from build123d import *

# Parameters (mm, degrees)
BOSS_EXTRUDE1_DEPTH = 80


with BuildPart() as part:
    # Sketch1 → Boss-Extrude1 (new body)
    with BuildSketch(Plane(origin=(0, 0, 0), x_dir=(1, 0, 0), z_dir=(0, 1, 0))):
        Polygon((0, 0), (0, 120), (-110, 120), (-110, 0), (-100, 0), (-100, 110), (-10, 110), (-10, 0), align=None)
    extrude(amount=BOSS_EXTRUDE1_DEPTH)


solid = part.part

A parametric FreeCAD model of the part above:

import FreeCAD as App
import Part
import Sketcher

doc = App.newDocument("Part")
body = doc.addObject("PartDesign::Body", "Body")

# Sketch on XZ plane
sketch1 = body.newObject("Sketcher::SketchObject", "Sketch")
sketch1.AttachmentSupport = (doc.getObject("XZ_Plane"), [""])
sketch1.MapMode = "FlatFace"
sketch1.addGeometry([
    Part.LineSegment(App.Vector(0, 0, 0), App.Vector(0, -120, 0)),  # 0
    Part.LineSegment(App.Vector(0, -120, 0), App.Vector(-110, -120, 0)),  # 1
    Part.LineSegment(App.Vector(-110, -120, 0), App.Vector(-110, 0, 0)),  # 2
    Part.LineSegment(App.Vector(-110, 0, 0), App.Vector(-100, 0, 0)),  # 3
    Part.LineSegment(App.Vector(-100, 0, 0), App.Vector(-100, -110, 0)),  # 4
    Part.LineSegment(App.Vector(-100, -110, 0), App.Vector(-10, -110, 0)),  # 5
    Part.LineSegment(App.Vector(-10, -110, 0), App.Vector(-10, 0, 0)),  # 6
    Part.LineSegment(App.Vector(-10, 0, 0), App.Vector(0, 0, 0)),  # 7
], False)
sketch1.addConstraint([
    Sketcher.Constraint("Coincident", 0, 2, 1, 1),
    Sketcher.Constraint("Coincident", 1, 2, 2, 1),
    Sketcher.Constraint("Coincident", 2, 2, 3, 1),
    Sketcher.Constraint("Coincident", 3, 2, 4, 1),
    Sketcher.Constraint("Coincident", 4, 2, 5, 1),
    Sketcher.Constraint("Coincident", 5, 2, 6, 1),
    Sketcher.Constraint("Coincident", 6, 2, 7, 1),
    Sketcher.Constraint("Coincident", 7, 2, 0, 1),
    Sketcher.Constraint("Vertical", 0),
    Sketcher.Constraint("Horizontal", 1),
    Sketcher.Constraint("Vertical", 2),
    Sketcher.Constraint("Horizontal", 3),
    Sketcher.Constraint("Vertical", 4),
    Sketcher.Constraint("Horizontal", 5),
    Sketcher.Constraint("Vertical", 6),
    Sketcher.Constraint("Horizontal", 7),
    Sketcher.Constraint("Coincident", 7, 2, -1, 1),
    Sketcher.Constraint("PointOnObject", 2, 2, -1),
    Sketcher.Constraint("Equal", 3, 7),
    Sketcher.Constraint("Equal", 1, 4),
    Sketcher.Constraint("DistanceX", 1, 2, 1, 1, 110.0),
    Sketcher.Constraint("DistanceX", 3, 1, 3, 2, 10.0),
    Sketcher.Constraint("DistanceY", 0, 2, 0, 1, 120.0),
])
pad1 = body.newObject("PartDesign::Pad", "Pad")
pad1.Profile = sketch1
pad1.Length = 80
pad1.Reversed = True

doc.recompute()
